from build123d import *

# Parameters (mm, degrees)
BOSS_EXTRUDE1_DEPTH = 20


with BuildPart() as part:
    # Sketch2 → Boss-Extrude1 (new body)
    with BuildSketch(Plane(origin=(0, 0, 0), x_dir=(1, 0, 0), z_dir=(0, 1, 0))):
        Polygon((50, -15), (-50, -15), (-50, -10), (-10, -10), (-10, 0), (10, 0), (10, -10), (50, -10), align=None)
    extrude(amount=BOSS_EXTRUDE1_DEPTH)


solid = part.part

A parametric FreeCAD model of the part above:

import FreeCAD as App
import Part
import Sketcher
from FreeCAD import Vector

doc = App.newDocument("Part")
params = doc.addObject("Spreadsheet::Sheet", "Params")
for row, (alias, value) in enumerate([
    ("sketch1_width", "100 mm"),
    ("sketch1_width2", "40 mm"),
    ("sketch1_height", "5 mm"),
    ("sketch1_height2", "10 mm"),
    ("pad1_length", "20 mm"),
], start=1):
    params.set(f"A{row}", alias)
    params.set(f"B{row}", "=" + value)
    params.setAlias(f"B{row}", alias)

body = doc.addObject("PartDesign::Body", "Body")

# Sketch on XZ plane
sketch1 = body.newObject("Sketcher::SketchObject", "Sketch")
sketch1.AttachmentSupport = (doc.getObject("XZ_Plane"), [""])
sketch1.MapMode = "FlatFace"
sketch1.addGeometry([
    Part.LineSegment(Vector(-50, 15, 0), Vector(50, 15, 0)),  # 0
    Part.LineSegment(Vector(50, 15, 0), Vector(50, 10, 0)),  # 1
    Part.LineSegment(Vector(50, 10, 0), Vector(10, 10, 0)),  # 2
    Part.LineSegment(Vector(10, 10, 0), Vector(10, 0, 0)),  # 3
    Part.LineSegment(Vector(10, 0, 0), Vector(-10, 0, 0)),  # 4
    Part.LineSegment(Vector(-10, 0, 0), Vector(-10, 10, 0)),  # 5
    Part.LineSegment(Vector(-10, 10, 0), Vector(-50, 10, 0)),  # 6
    Part.LineSegment(Vector(-50, 10, 0), Vector(-50, 15, 0)),  # 7
], False)
sketch1.addConstraint([
    Sketcher.Constraint("Coincident", 0, 2, 1, 1),
    Sketcher.Constraint("Coincident", 1, 2, 2, 1),
    Sketcher.Constraint("Coincident", 2, 2, 3, 1),
    Sketcher.Constraint("Coincident", 3, 2, 4, 1),
    Sketcher.Constraint("Coincident", 4, 2, 5, 1),
    Sketcher.Constraint("Coincident", 5, 2, 6, 1),
    Sketcher.Constraint("Coincident", 6, 2, 7, 1),
    Sketcher.Constraint("Coincident", 7, 2, 0, 1),
    Sketcher.Constraint("Horizontal", 0),
    Sketcher.Constraint("Vertical", 1),
    Sketcher.Constraint("Horizontal", 2),
    Sketcher.Constraint("Vertical", 3),
    Sketcher.Constraint("Horizontal", 4),
    Sketcher.Constraint("Vertical", 5),
    Sketcher.Constraint("Horizontal", 6),
    Sketcher.Constraint("Vertical", 7),
    Sketcher.Constraint("Symmetric", 3, 2, 4, 2, -1, 1),
    Sketcher.Constraint("Symmetric", 1, 2, 6, 2, -2),
    Sketcher.Constraint("DistanceX", 0, 1, 0, 2, 100.0),
    Sketcher.Constraint("DistanceX", 2, 2, 2, 1, 40.0),
    Sketcher.Constraint("DistanceY", 1, 2, 1, 1, 5.0),
    Sketcher.Constraint("DistanceY", 3, 2, 3, 1, 10.0),
])
sketch1.setExpression("Constraints[18]", "Params.sketch1_width")
sketch1.setExpression("Constraints[19]", "Params.sketch1_width2")
sketch1.setExpression("Constraints[20]", "Params.sketch1_height")
sketch1.setExpression("Constraints[21]", "Params.sketch1_height2")
pad1 = body.newObject("PartDesign::Pad", "Pad")
pad1.Profile = sketch1
pad1.setExpression("Length", "Params.pad1_length")
pad1.Reversed = True

doc.recompute()
